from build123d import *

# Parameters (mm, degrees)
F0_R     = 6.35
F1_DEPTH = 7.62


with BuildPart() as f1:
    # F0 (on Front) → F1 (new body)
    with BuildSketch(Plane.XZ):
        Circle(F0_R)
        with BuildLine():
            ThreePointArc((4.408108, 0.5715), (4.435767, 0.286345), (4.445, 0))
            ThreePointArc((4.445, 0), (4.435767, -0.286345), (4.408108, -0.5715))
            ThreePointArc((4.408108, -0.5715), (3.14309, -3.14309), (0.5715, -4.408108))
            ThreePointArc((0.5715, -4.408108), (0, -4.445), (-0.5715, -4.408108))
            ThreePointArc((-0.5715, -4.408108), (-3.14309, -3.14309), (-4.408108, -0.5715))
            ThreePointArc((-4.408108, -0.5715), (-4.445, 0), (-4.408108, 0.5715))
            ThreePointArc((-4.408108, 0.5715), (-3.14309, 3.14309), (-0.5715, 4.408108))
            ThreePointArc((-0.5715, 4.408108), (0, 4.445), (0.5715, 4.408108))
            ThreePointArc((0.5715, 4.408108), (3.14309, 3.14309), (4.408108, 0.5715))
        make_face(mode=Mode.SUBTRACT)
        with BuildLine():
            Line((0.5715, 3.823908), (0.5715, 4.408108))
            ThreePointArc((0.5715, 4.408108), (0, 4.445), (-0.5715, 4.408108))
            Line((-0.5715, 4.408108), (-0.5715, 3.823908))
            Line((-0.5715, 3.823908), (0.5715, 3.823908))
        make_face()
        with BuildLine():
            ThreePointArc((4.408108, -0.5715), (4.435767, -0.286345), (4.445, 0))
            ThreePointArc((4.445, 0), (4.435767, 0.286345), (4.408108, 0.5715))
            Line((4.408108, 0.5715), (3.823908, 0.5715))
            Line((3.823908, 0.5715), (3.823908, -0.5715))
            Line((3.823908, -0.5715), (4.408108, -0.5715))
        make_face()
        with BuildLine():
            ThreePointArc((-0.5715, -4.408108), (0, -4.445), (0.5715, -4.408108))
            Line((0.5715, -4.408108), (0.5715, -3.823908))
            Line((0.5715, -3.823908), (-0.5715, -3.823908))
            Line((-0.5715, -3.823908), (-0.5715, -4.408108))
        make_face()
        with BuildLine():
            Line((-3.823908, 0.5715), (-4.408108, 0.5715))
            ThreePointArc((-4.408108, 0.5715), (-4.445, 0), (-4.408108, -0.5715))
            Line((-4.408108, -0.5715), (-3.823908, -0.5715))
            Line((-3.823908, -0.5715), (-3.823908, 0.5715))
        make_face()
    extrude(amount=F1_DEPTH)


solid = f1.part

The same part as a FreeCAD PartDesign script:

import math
import FreeCAD as App
import Part
import Sketcher

V = App.Vector
Q = App.Units.Quantity

doc = App.newDocument("Part")
params = doc.addObject("Spreadsheet::Sheet", "Params")
for row, (alias, value) in enumerate([
    ("sketch1_diameter", "0.5 in"),
    ("sketch1_radius", "0.175 in"),
    ("sketch1_width", "0.023 in"),
    ("sketch1_width2", "0.045 in"),
    ("pad1_length", "0.3 in"),
], start=1):
    params.set(f"A{row}", alias)
    params.set(f"B{row}", "=" + value)
    params.setAlias(f"B{row}", alias)

body = doc.addObject("PartDesign::Body", "Body")

# Sketch on XZ plane
sketch1 = doc.addObject("Sketcher::SketchObject", "Sketch")
body.addObject(sketch1)
sketch1.AttachmentSupport = (doc.XZ_Plane, [""])
sketch1.MapMode = "FlatFace"
sketch1.addGeometry(Part.Circle(V(0, 0, 0), V(0, 0, 1), 6.35), False)
sketch1.addGeometry(Part.ArcOfCircle(Part.Circle(V(0, 0, 0), V(0, 0, 1), 4.445), math.radians(7.387043), math.radians(82.612957)), False)
sketch1.addGeometry(Part.LineSegment(V(4.408108, 0.5715, 0), V(3.823908, 0.5715, 0)), False)
sketch1.addGeometry(Part.LineSegment(V(3.823908, 0.5715, 0), V(3.823908, -0.5715, 0)), False)
sketch1.addGeometry(Part.LineSegment(V(3.823908, -0.5715, 0), V(4.408108, -0.5715, 0)), False)
sketch1.addGeometry(Part.ArcOfCircle(Part.Circle(V(0, 0, 0), V(0, 0, 1), 4.445), math.radians(-82.612957), math.radians(-7.387043)), False)
sketch1.addGeometry(Part.LineSegment(V(0.5715, -4.408108, 0), V(0.5715, -3.823908, 0)), False)
sketch1.addGeometry(Part.LineSegment(V(0.5715, -3.823908, 0), V(-0.5715, -3.823908, 0)), False)
sketch1.addGeometry(Part.LineSegment(V(-0.5715, -3.823908, 0), V(-0.5715, -4.408108, 0)), False)
sketch1.addGeometry(Part.ArcOfCircle(Part.Circle(V(0, 0, 0), V(0, 0, 1), 4.445), math.radians(-172.612957), math.radians(-97.387043)), False)
sketch1.addGeometry(Part.LineSegment(V(-4.408108, -0.5715, 0), V(-3.823908, -0.5715, 0)), False)
sketch1.addGeometry(Part.LineSegment(V(-3.823908, -0.5715, 0), V(-3.823908, 0.5715, 0)), False)
sketch1.addGeometry(Part.LineSegment(V(-3.823908, 0.5715, 0), V(-4.408108, 0.5715, 0)), False)
sketch1.addGeometry(Part.ArcOfCircle(Part.Circle(V(0, 0, 0), V(0, 0, 1), 4.445), math.radians(97.387043), math.radians(172.612957)), False)
sketch1.addGeometry(Part.LineSegment(V(-0.5715, 4.408108, 0), V(-0.5715, 3.823908, 0)), False)
sketch1.addGeometry(Part.LineSegment(V(-0.5715, 3.823908, 0), V(0.5715, 3.823908, 0)), False)
sketch1.addGeometry(Part.LineSegment(V(0.5715, 3.823908, 0), V(0.5715, 4.408108, 0)), False)
sketch1.addConstraint(Sketcher.Constraint("Coincident", 1, 1, 2, 1))
sketch1.addConstraint(Sketcher.Constraint("Coincident", 2, 2, 3, 1))
sketch1.addConstraint(Sketcher.Constraint("Coincident", 3, 2, 4, 1))
sketch1.addConstraint(Sketcher.Constraint("Coincident", 4, 2, 5, 2))
sketch1.addConstraint(Sketcher.Constraint("Coincident", 5, 1, 6, 1))
sketch1.addConstraint(Sketcher.Constraint("Coincident", 6, 2, 7, 1))
sketch1.addConstraint(Sketcher.Constraint("Coincident", 7, 2, 8, 1))
sketch1.addConstraint(Sketcher.Constraint("Coincident", 8, 2, 9, 2))
sketch1.addConstraint(Sketcher.Constraint("Coincident", 9, 1, 10, 1))
sketch1.addConstraint(Sketcher.Constraint("Coincident", 10, 2, 11, 1))
sketch1.addConstraint(Sketcher.Constraint("Coincident", 11, 2, 12, 1))
sketch1.addConstraint(Sketcher.Constraint("Coincident", 12, 2, 13, 2))
sketch1.addConstraint(Sketcher.Constraint("Coincident", 13, 1, 14, 1))
sketch1.addConstraint(Sketcher.Constraint("Coincident", 14, 2, 15, 1))
sketch1.addConstraint(Sketcher.Constraint("Coincident", 15, 2, 16, 1))
sketch1.addConstraint(Sketcher.Constraint("Coincident", 16, 2, 1, 2))
sketch1.addConstraint(Sketcher.Constraint("Horizontal", 2))
sketch1.addConstraint(Sketcher.Constraint("Vertical", 3))
sketch1.addConstraint(Sketcher.Constraint("Horizontal", 4))
sketch1.addConstraint(Sketcher.Constraint("Vertical", 6))
sketch1.addConstraint(Sketcher.Constraint("Horizontal", 7))
sketch1.addConstraint(Sketcher.Constraint("Vertical", 8))
sketch1.addConstraint(Sketcher.Constraint("Horizontal", 10))
sketch1.addConstraint(Sketcher.Constraint("Vertical", 11))
sketch1.addConstraint(Sketcher.Constraint("Horizontal", 12))
sketch1.addConstraint(Sketcher.Constraint("Vertical", 14))
sketch1.addConstraint(Sketcher.Constraint("Horizontal", 15))
sketch1.addConstraint(Sketcher.Constraint("Vertical", 16))
sketch1.addConstraint(Sketcher.Constraint("Coincident", 0, 3, -1, 1))
sketch1.addConstraint(Sketcher.Constraint("Coincident", 1, 3, -1, 1))
sketch1.addConstraint(Sketcher.Constraint("Coincident", 5, 3, -1, 1))
sketch1.addConstraint(Sketcher.Constraint("Coincident", 9, 3, -1, 1))
sketch1.addConstraint(Sketcher.Constraint("Coincident", 13, 3, -1, 1))
sketch1.addConstraint(Sketcher.Constraint("Equal", 1, 5))
sketch1.addConstraint(Sketcher.Constraint("Equal", 5, 9))
sketch1.addConstraint(Sketcher.Constraint("Equal", 9, 13))
sketch1.addConstraint(Sketcher.Constraint("Symmetric", 2, 2, 10, 2, -1, 1))
sketch1.addConstraint(Sketcher.Constraint("Symmetric", 6, 2, 14, 2, -1, 1))
sketch1.addConstraint(Sketcher.Constraint("Horizontal", 5, 1, 8, 2))
sketch1.addConstraint(Sketcher.Constraint("Horizontal", 4, 2, 9, 1))
sketch1.addConstraint(Sketcher.Constraint("Horizontal", 2, 2, 11, 2))
sketch1.addConstraint(Sketcher.Constraint("Horizontal", 13, 1, 16, 2))
sketch1.addConstraint(Sketcher.Constraint("Equal", 15, 3))
sketch1.addConstraint(Sketcher.Constraint("Equal", 12, 6))
sketch1.addConstraint(Sketcher.Constraint("Diameter", 0, Q("0.5 in")))
sketch1.addConstraint(Sketcher.Constraint("Radius", 1, Q("0.175 in")))
sketch1.addConstraint(Sketcher.Constraint("DistanceX", 2, 2, 2, 1, Q("0.023 in")))
sketch1.addConstraint(Sketcher.Constraint("DistanceX", 7, 2, 7, 1, Q("0.045 in")))
sketch1.setExpression("Constraints[44]", "Params.sketch1_diameter")
sketch1.setExpression("Constraints[45]", "Params.sketch1_radius")
sketch1.setExpression("Constraints[46]", "Params.sketch1_width")
sketch1.setExpression("Constraints[47]", "Params.sketch1_width2")
pad1 = doc.addObject("PartDesign::Pad", "Pad")
body.addObject(pad1)
pad1.Profile = sketch1
pad1.setExpression("Length", "Params.pad1_length")

doc.recompute()
